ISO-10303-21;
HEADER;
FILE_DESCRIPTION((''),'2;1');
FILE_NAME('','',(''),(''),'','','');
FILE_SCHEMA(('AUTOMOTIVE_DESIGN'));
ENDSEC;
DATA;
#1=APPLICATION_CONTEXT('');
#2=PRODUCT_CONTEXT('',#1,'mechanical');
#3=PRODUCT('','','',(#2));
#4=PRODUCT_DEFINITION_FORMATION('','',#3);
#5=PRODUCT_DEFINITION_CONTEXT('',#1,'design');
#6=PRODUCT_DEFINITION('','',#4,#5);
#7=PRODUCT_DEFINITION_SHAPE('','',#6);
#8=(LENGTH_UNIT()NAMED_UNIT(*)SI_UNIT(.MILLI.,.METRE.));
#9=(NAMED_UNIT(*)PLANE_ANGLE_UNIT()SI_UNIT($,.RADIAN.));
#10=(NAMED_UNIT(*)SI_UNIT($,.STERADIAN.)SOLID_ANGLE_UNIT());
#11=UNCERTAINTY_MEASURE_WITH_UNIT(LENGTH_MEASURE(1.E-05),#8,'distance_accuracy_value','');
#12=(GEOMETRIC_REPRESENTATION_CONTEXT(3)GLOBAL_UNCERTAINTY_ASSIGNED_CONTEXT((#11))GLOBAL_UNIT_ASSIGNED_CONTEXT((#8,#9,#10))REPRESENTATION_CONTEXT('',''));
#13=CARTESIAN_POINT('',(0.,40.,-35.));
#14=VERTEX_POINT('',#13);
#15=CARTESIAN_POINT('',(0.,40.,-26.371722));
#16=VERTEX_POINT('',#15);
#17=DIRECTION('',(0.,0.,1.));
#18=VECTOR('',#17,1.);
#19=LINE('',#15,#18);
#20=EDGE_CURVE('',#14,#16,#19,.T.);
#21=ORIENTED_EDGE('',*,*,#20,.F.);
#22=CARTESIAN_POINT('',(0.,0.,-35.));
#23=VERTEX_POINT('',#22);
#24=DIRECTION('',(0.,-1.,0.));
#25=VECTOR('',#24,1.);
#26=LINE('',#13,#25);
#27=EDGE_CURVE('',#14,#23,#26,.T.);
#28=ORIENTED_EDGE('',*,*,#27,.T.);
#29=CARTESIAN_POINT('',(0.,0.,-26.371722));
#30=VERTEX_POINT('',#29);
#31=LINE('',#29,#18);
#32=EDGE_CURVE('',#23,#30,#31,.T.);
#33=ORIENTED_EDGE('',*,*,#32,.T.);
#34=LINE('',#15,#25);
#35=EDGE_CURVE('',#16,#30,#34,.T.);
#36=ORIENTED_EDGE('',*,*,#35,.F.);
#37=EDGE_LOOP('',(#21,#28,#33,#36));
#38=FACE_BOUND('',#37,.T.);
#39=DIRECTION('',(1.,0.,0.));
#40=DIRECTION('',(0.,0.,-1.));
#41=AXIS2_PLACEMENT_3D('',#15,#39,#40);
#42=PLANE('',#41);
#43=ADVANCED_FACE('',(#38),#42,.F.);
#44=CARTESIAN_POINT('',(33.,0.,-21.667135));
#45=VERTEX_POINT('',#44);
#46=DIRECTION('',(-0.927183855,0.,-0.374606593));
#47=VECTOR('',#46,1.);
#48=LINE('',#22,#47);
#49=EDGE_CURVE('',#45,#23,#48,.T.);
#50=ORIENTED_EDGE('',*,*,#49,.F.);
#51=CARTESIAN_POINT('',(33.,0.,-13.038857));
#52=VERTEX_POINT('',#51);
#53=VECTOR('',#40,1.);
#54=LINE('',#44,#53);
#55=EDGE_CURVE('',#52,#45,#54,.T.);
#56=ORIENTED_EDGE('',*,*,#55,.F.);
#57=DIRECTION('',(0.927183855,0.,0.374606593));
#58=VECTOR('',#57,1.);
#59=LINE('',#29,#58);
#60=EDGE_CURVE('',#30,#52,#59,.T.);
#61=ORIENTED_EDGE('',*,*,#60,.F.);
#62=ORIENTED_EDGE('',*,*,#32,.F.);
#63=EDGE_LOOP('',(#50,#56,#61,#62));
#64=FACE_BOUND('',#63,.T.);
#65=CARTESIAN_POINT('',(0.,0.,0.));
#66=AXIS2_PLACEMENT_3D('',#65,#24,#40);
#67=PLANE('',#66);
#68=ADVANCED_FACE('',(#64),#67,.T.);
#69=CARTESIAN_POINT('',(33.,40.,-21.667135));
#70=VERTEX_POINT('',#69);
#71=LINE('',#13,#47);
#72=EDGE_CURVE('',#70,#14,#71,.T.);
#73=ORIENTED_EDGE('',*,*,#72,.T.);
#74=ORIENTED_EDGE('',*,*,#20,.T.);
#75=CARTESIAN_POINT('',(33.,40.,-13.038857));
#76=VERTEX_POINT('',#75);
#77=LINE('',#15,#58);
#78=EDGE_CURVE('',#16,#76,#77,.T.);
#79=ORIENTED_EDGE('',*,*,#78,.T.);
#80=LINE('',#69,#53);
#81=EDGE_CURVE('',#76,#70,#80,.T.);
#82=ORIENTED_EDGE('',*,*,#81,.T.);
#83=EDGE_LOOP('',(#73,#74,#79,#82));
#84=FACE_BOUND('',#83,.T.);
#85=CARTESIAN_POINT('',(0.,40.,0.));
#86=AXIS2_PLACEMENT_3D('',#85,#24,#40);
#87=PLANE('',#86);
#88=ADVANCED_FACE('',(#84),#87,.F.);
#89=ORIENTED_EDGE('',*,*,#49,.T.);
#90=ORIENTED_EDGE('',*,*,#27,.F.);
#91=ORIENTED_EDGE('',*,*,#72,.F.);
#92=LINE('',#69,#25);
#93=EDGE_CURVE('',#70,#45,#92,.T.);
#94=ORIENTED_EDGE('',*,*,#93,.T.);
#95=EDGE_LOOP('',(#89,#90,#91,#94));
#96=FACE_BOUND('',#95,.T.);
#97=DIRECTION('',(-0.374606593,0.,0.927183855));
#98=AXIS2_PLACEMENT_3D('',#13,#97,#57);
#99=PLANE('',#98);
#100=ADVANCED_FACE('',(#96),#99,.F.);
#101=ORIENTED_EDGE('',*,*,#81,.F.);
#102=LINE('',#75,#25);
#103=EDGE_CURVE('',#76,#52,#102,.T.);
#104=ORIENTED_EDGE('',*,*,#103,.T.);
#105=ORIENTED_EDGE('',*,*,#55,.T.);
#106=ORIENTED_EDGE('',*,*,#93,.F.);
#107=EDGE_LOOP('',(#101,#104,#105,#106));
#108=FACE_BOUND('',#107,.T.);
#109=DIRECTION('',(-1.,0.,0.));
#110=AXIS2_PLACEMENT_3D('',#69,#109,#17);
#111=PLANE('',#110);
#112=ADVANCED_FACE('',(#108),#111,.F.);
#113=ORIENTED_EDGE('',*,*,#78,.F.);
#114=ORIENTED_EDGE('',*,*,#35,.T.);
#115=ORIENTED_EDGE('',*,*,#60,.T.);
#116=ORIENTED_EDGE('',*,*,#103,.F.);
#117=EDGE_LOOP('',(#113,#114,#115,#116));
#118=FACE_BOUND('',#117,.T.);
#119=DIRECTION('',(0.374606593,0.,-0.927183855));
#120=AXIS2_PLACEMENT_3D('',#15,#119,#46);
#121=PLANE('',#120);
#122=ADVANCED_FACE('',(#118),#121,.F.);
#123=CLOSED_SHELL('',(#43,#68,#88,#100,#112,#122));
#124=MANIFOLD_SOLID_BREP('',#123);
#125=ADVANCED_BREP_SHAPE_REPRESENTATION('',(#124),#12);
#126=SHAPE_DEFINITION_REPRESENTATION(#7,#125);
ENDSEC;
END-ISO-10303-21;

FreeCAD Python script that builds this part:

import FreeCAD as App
import Part
import Sketcher
Q = App.Units.Quantity

doc = App.newDocument("Part")
body = doc.addObject("PartDesign::Body", "Body")

# Sketch on XZ plane
sketch1 = body.newObject("Sketcher::SketchObject", "Sketch")
sketch1.AttachmentSupport = (doc.getObject("XZ_Plane"), [""])
sketch1.MapMode = "FlatFace"
sketch1.addGeometry([
    Part.LineSegment(App.Vector(0, -35, 0), App.Vector(0, -26, 0)),
    Part.LineSegment(App.Vector(0, -26, 0), App.Vector(33, -13, 0)),
    Part.LineSegment(App.Vector(33, -13, 0), App.Vector(33, -22, 0)),
    Part.LineSegment(App.Vector(33, -22, 0), App.Vector(0, -35, 0)),
], False)
sketch1.addConstraint([
    Sketcher.Constraint("Coincident", 0, 2, 1, 1),
    Sketcher.Constraint("Coincident", 1, 2, 2, 1),
    Sketcher.Constraint("Coincident", 2, 2, 3, 1),
    Sketcher.Constraint("Coincident", 3, 2, 0, 1),
    Sketcher.Constraint("Vertical", 0),
    Sketcher.Constraint("Vertical", 2),
    Sketcher.Constraint("PointOnObject", 0, 2, -2),
    Sketcher.Constraint("Parallel", 1, 3),
    Sketcher.Constraint("Angle", 1, Q("22 deg")),
    Sketcher.Constraint("DistanceX", -1, 1, 1, 2, Q("33 mm")),
    Sketcher.Constraint("DistanceY", 3, 2, -1, 1, Q("35 mm")),
    Sketcher.Constraint("DistanceY", 0, 1, 0, 2, Q("8.628278 mm")),
])
pad1 = body.newObject("PartDesign::Pad", "Pad")
pad1.Profile = sketch1
pad1.Length = 40
pad1.Reversed = True

doc.recompute()
